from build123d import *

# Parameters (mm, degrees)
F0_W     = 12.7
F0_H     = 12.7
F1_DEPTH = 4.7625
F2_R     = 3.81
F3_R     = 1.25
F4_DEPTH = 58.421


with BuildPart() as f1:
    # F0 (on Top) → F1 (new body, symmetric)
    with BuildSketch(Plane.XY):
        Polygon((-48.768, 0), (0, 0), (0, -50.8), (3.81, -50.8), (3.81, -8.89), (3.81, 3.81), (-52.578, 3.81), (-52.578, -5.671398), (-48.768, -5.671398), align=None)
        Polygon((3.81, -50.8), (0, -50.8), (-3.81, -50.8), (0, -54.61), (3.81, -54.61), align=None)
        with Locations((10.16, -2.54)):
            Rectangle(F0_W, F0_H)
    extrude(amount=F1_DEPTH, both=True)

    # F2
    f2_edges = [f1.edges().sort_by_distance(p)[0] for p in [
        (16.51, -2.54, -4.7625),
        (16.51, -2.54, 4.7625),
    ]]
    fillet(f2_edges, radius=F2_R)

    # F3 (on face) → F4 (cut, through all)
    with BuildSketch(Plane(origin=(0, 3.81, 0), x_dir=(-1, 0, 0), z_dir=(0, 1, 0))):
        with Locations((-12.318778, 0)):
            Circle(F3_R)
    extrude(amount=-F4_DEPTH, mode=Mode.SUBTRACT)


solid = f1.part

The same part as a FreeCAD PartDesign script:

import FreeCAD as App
import Part
import Sketcher
Q = App.Units.Quantity


def edges_at(feature, points):
    """Names of the edges that pass closest to the given points."""
    edges = feature.Shape.Edges
    near = lambda p: min(range(len(edges)), key=lambda i: edges[i].distToShape(Part.Vertex(*p))[0])
    return sorted({f"Edge{near(p) + 1}" for p in points})


def add_polygon(sketch, points):
    """Adds a closed chain of lines whose ends are joined by coincident constraints."""
    first, n = sketch.GeometryCount, len(points)
    for a, b in zip(points, points[1:] + points[:1]):
        sketch.addGeometry(Part.LineSegment(App.Vector(*a, 0), App.Vector(*b, 0)), False)
    for i in range(n):
        sketch.addConstraint(Sketcher.Constraint("Coincident", first + i, 2, first + (i + 1) % n, 1))

doc = App.newDocument("Part")
body = doc.addObject("PartDesign::Body", "Body")

# Sketch on XY plane
sketch1 = body.newObject("Sketcher::SketchObject", "Sketch")
sketch1.AttachmentSupport = (doc.getObject("XY_Plane"), [""])
sketch1.MapMode = "FlatFace"
add_polygon(sketch1, [(-48.8, 0), (0, 0), (0, -50.8), (-3.8, -50.8), (0, -54.6), (3.8, -54.6), (3.8, -8.9), (16.5, -8.9), (16.5, 3.8), (-52.6, 3.8), (-52.6, -5.7), (-48.8, -5.7)])  # lines 0-11
sketch1.addConstraint([
    Sketcher.Constraint("Horizontal", 0),
    Sketcher.Constraint("Vertical", 1),
    Sketcher.Constraint("Horizontal", 2),
    Sketcher.Constraint("Horizontal", 4),
    Sketcher.Constraint("Vertical", 5),
    Sketcher.Constraint("Horizontal", 6),
    Sketcher.Constraint("Vertical", 7),
    Sketcher.Constraint("Horizontal", 8),
    Sketcher.Constraint("Vertical", 9),
    Sketcher.Constraint("Horizontal", 10),
    Sketcher.Constraint("Vertical", 11),
    Sketcher.Constraint("Coincident", 0, 2, -1, 1),
    Sketcher.Constraint("PointOnObject", 3, 2, -2),
    Sketcher.Constraint("Equal", 2, 4),
    Sketcher.Constraint("Equal", 4, 10),
    Sketcher.Constraint("Equal", 6, 7),
    Sketcher.Constraint("DistanceY", 1, 2, 1, 1, Q("2 in")),
    Sketcher.Constraint("DistanceX", 6, 1, 6, 2, Q("0.5 in")),
    Sketcher.Constraint("DistanceY", 5, 1, 5, 2, Q("1.8 in")),
    Sketcher.Constraint("Angle", 3, Q("-45 deg")),
    Sketcher.Constraint("DistanceX", 0, 1, 0, 2, Q("1.92 in")),
    Sketcher.Constraint("DistanceX", 2, 2, 2, 1, Q("0.15 in")),
    Sketcher.Constraint("DistanceY", 9, 2, 9, 1, 9.481398),
])
pad1 = body.newObject("PartDesign::Pad", "Pad")
pad1.Profile = sketch1
pad1.Length = Q("0.375 in")
pad1.Midplane = True
doc.recompute()

fillet = body.newObject("PartDesign::Fillet", "Fillet")
fillet.Base = (pad1, edges_at(pad1, [(16.51, -2.54, -4.763), (16.51, -2.54, 4.763)]))
fillet.Radius = Q("0.15 in")

# Sketch on XZ plane
sketch2 = body.newObject("Sketcher::SketchObject", "Sketch001")
sketch2.AttachmentSupport = (doc.getObject("XZ_Plane"), [""])
sketch2.MapMode = "FlatFace"
sketch2.AttachmentOffset = App.Placement(App.Vector(0, 0, -0.15 * 25.4), App.Rotation())
sketch2.addGeometry(Part.Circle(App.Vector(12.3, 0, 0), App.Vector(0, 0, 1), 1.2), False)
sketch2.addConstraint([
    Sketcher.Constraint("PointOnObject", 0, 3, -1),
    Sketcher.Constraint("Diameter", 0, 2.5),
    Sketcher.Constraint("DistanceX", -1, 1, 0, 3, 12.318778),
])
pocket1 = body.newObject("PartDesign::Pocket", "Pocket")
pocket1.Profile = sketch2
pocket1.Type = "ThroughAll"
pocket1.Reversed = True

doc.recompute()
